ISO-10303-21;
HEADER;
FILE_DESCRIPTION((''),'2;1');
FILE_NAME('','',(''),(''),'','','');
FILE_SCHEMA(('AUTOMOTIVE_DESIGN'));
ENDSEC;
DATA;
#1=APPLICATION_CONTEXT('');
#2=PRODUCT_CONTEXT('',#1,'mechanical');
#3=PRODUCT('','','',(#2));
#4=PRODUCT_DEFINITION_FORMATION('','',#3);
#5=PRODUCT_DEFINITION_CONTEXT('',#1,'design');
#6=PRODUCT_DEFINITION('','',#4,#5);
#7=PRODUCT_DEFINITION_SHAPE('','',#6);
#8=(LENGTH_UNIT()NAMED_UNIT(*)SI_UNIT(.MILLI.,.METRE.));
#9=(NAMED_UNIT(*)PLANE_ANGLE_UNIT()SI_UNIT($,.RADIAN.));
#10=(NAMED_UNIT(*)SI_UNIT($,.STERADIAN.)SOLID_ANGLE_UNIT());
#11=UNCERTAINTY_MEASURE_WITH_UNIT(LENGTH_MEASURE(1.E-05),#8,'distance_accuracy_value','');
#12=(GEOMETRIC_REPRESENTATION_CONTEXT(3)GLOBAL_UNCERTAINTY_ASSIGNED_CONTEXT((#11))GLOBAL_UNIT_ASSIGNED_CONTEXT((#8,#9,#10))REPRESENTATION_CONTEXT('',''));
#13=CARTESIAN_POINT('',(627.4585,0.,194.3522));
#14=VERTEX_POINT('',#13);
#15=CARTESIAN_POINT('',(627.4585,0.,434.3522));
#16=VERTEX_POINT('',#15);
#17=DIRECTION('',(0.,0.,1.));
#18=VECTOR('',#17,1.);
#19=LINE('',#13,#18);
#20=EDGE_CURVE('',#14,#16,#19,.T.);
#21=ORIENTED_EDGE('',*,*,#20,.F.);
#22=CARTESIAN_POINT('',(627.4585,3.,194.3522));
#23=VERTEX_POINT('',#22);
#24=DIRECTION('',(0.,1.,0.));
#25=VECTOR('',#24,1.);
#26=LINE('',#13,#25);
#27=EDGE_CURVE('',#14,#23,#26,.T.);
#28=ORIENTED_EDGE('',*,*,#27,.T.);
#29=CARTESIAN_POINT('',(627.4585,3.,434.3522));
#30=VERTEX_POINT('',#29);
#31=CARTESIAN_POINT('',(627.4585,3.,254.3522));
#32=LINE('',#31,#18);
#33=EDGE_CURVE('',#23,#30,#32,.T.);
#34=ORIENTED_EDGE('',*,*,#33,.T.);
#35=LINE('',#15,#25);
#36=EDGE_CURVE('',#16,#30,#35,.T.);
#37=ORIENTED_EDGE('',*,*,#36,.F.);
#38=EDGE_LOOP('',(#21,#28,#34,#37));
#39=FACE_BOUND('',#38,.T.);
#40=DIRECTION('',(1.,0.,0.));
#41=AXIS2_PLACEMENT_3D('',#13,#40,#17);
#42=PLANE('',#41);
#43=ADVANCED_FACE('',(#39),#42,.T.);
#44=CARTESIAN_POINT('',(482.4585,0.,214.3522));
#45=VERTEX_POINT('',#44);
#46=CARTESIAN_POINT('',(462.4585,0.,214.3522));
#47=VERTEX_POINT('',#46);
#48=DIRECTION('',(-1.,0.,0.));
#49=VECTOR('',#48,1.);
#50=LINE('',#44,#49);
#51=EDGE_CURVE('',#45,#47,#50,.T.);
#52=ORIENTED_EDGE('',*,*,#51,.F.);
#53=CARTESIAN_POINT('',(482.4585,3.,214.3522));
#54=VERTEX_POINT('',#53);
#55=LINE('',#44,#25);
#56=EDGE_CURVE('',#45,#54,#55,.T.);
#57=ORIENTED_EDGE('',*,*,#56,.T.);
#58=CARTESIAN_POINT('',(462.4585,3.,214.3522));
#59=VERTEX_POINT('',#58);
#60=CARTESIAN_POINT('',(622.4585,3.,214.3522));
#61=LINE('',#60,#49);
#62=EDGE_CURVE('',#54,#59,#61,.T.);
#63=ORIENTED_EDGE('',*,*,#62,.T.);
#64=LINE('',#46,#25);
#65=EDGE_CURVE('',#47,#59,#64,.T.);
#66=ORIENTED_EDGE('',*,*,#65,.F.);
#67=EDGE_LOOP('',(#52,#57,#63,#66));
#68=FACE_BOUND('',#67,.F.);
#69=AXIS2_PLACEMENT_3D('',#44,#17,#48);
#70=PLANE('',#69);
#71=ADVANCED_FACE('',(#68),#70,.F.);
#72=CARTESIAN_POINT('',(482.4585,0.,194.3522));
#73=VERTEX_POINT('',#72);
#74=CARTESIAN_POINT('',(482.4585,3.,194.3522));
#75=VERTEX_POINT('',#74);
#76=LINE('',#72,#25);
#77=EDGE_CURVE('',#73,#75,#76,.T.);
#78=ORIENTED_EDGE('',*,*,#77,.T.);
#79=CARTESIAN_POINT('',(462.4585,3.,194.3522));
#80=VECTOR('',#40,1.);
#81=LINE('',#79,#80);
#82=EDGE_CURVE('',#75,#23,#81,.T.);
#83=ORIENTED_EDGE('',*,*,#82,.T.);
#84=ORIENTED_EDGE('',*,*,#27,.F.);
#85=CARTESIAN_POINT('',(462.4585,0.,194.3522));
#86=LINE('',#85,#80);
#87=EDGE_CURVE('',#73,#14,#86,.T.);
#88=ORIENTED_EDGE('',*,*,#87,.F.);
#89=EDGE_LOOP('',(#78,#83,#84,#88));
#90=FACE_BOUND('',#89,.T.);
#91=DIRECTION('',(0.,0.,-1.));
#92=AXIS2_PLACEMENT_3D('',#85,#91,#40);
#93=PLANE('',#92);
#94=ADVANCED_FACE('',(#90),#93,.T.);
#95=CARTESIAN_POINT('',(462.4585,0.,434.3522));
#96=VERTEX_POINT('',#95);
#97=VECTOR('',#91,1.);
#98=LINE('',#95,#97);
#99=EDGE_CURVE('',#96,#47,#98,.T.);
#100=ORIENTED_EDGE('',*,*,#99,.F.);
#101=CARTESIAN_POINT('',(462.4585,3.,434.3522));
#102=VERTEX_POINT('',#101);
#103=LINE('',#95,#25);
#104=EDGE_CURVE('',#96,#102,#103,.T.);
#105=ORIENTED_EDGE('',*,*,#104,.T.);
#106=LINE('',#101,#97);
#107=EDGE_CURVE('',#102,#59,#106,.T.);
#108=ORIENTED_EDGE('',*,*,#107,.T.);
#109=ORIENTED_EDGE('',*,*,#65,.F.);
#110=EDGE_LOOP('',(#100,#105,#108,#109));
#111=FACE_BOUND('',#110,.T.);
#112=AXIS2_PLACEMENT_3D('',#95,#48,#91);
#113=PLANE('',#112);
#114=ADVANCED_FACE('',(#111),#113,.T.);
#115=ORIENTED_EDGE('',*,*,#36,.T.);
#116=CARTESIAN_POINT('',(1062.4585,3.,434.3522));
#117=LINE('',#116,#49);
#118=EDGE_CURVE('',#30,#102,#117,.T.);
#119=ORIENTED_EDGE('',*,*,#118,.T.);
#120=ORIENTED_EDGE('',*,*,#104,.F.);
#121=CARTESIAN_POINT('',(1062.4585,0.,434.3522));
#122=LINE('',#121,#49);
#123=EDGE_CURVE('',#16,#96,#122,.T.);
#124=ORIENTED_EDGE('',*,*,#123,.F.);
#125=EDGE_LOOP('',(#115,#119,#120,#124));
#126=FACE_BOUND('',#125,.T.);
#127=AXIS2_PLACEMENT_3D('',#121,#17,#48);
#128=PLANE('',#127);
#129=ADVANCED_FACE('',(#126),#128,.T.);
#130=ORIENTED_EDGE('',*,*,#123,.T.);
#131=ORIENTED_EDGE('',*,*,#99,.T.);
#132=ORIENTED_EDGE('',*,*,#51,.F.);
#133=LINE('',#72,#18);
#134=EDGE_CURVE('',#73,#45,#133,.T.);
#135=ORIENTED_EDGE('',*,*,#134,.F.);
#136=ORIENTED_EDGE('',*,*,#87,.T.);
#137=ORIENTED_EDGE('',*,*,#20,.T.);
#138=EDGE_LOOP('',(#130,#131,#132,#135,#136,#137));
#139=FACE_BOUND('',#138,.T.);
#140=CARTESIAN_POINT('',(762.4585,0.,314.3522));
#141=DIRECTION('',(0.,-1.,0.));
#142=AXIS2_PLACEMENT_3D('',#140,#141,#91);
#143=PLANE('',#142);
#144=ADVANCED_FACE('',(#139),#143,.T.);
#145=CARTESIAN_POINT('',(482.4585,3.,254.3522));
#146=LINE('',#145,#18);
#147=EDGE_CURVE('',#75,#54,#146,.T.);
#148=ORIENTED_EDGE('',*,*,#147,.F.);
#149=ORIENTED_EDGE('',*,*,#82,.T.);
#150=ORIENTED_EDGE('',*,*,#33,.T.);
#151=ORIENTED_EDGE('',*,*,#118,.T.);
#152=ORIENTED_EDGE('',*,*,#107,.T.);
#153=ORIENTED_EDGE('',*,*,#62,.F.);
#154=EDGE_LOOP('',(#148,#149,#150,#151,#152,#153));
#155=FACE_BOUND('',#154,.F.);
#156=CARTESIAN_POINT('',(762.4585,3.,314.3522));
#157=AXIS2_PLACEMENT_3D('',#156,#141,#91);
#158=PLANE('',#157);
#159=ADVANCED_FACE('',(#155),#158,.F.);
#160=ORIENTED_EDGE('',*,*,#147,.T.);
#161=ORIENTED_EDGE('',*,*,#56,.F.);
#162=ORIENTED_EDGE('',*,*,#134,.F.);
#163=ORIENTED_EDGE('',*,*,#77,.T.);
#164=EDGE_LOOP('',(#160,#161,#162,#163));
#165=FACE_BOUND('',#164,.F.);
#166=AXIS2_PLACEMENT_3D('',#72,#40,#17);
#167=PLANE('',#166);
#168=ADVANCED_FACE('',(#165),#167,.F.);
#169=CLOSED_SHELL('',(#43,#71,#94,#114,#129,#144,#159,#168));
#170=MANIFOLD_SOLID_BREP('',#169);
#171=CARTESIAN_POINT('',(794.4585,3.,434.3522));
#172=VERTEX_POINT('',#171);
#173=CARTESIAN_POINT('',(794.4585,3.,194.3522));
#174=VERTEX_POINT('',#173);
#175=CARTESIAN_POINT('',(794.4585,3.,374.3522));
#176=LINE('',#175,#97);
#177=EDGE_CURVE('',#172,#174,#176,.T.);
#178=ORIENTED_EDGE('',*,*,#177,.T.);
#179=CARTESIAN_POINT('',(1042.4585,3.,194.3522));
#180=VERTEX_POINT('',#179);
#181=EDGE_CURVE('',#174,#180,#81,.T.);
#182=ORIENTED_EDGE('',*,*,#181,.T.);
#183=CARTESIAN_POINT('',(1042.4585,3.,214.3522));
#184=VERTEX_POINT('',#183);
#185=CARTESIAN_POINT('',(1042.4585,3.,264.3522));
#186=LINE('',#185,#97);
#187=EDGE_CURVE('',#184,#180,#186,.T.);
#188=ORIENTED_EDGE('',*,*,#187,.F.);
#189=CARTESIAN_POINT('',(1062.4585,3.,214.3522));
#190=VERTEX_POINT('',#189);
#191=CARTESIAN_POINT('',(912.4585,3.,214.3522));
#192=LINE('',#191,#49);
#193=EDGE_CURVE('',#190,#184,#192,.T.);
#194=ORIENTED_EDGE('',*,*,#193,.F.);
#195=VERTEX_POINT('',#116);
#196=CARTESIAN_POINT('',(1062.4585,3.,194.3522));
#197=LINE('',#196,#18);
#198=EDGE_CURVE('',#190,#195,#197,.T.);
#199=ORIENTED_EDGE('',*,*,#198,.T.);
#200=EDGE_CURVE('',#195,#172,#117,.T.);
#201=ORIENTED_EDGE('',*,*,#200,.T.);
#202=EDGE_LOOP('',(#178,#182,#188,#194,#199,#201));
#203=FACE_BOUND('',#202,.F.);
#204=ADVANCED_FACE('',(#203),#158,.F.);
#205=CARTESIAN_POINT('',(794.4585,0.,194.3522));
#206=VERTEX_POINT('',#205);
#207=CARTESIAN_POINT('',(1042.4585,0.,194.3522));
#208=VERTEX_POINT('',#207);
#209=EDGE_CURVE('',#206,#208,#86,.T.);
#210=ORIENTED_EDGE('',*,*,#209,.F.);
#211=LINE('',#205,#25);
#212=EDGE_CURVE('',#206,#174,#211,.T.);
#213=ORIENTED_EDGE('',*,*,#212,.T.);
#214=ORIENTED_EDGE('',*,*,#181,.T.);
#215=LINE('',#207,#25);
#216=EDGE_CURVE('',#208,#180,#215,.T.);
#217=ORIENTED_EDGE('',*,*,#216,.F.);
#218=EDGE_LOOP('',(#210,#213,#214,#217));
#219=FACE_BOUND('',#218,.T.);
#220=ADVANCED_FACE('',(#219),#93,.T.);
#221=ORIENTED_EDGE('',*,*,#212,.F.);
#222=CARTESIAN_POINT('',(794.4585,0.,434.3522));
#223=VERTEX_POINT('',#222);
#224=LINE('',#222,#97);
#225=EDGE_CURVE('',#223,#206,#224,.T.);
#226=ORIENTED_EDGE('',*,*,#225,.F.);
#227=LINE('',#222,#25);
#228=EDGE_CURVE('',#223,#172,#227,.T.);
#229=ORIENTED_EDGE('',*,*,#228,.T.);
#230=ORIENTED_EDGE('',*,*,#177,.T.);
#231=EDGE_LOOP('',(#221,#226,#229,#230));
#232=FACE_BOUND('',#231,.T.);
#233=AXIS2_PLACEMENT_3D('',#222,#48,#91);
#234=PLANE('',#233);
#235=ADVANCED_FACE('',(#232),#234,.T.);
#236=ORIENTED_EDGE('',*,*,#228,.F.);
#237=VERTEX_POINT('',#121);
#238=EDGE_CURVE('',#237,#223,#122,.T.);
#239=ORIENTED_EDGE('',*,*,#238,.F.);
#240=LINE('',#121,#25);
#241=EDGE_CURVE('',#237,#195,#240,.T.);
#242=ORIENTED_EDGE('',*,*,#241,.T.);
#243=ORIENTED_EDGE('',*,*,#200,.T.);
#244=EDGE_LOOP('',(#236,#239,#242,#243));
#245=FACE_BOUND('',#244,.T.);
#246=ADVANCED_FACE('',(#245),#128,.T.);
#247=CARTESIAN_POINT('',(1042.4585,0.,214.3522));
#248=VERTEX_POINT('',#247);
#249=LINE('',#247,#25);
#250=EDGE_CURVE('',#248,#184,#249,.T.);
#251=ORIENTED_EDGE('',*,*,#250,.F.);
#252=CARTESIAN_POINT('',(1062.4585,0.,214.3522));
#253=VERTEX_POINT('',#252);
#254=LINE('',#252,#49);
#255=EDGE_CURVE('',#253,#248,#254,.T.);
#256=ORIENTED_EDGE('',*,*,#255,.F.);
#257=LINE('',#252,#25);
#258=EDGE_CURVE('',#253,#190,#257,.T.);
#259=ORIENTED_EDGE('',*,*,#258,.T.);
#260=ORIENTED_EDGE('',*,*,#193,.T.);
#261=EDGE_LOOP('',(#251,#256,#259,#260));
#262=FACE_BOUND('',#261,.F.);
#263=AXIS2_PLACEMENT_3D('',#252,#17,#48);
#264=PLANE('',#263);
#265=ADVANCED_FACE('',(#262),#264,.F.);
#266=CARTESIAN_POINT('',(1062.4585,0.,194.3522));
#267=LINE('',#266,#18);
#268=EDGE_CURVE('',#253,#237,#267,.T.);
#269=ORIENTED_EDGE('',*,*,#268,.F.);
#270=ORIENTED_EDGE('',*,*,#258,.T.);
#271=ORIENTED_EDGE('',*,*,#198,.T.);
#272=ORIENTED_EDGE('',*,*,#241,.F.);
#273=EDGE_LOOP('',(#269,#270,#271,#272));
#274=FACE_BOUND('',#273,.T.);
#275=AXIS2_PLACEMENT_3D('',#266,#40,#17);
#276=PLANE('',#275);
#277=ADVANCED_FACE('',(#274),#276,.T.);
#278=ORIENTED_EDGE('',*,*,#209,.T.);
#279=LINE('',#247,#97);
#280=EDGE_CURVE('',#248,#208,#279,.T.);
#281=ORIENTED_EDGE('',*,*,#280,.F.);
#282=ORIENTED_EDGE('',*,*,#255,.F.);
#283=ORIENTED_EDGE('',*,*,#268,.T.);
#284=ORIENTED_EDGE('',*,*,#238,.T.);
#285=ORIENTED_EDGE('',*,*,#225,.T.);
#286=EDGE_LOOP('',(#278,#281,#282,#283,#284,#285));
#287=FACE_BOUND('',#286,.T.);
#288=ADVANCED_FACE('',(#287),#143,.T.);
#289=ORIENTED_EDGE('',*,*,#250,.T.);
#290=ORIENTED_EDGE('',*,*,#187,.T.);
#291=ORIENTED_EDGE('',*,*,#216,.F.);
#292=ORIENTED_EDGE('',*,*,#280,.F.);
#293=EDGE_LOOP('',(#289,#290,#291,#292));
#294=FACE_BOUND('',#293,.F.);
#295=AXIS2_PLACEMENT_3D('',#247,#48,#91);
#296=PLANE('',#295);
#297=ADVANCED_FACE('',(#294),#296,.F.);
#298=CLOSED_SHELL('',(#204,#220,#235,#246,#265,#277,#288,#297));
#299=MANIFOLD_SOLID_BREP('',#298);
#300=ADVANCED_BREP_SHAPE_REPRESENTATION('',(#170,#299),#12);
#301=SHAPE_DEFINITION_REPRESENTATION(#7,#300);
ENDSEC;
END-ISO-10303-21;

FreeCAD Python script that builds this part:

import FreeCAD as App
import Part
import Sketcher
from FreeCAD import Vector

doc = App.newDocument("Part")
body = doc.addObject("PartDesign::Body", "Body")
body.AllowCompound = True

# Sketch on XZ plane
sketch1 = doc.addObject("Sketcher::SketchObject", "Sketch")
body.addObject(sketch1)
sketch1.AttachmentSupport = (doc.XZ_Plane, [""])
sketch1.MapMode = "FlatFace"
sketch1.addGeometry([
    Part.LineSegment(Vector(1062, 434, 0), Vector(462, 434, 0)),
    Part.LineSegment(Vector(462, 434, 0), Vector(462, 194, 0)),
    Part.LineSegment(Vector(462, 194, 0), Vector(1062, 194, 0)),
    Part.LineSegment(Vector(1062, 194, 0), Vector(1062, 434, 0)),
], False)
sketch1.addConstraint([
    Sketcher.Constraint("Coincident", 0, 2, 1, 1),
    Sketcher.Constraint("Coincident", 1, 2, 2, 1),
    Sketcher.Constraint("Coincident", 2, 2, 3, 1),
    Sketcher.Constraint("Coincident", 3, 2, 0, 1),
    Sketcher.Constraint("Horizontal", 0),
    Sketcher.Constraint("Vertical", 1),
    Sketcher.Constraint("Horizontal", 2),
    Sketcher.Constraint("Vertical", 3),
    Sketcher.Constraint("DistanceX", 0, 2, 0, 1, 600.0),
    Sketcher.Constraint("DistanceY", 1, 2, 1, 1, 240.0),
    Sketcher.Constraint("DistanceX", -1, 1, 2, 2, 1062.4585),
    Sketcher.Constraint("DistanceY", -1, 1, 0, 2, 434.3522),
])
pad1 = doc.addObject("PartDesign::Pad", "Pad")
body.addObject(pad1)
pad1.Profile = sketch1
pad1.Length = 3
pad1.Reversed = True

# Sketch on XZ plane
sketch2 = doc.addObject("Sketcher::SketchObject", "Sketch001")
body.addObject(sketch2)
sketch2.AttachmentSupport = (doc.XZ_Plane, [""])
sketch2.MapMode = "FlatFace"
sketch2.addGeometry([
    Part.LineSegment(Vector(1062, 194, 0), Vector(1062, 214, 0)),  # 0
    Part.LineSegment(Vector(1062, 214, 0), Vector(1042, 214, 0)),  # 1
    Part.LineSegment(Vector(1042, 214, 0), Vector(1042, 194, 0)),  # 2
    Part.LineSegment(Vector(1042, 194, 0), Vector(1062, 194, 0)),  # 3
    Part.LineSegment(Vector(462, 214, 0), Vector(462, 194, 0)),  # 4
    Part.LineSegment(Vector(462, 194, 0), Vector(482, 194, 0)),  # 5
    Part.LineSegment(Vector(482, 194, 0), Vector(482, 214, 0)),  # 6
    Part.LineSegment(Vector(482, 214, 0), Vector(462, 214, 0)),  # 7
], False)
sketch2.addConstraint([
    Sketcher.Constraint("Coincident", 0, 2, 1, 1),
    Sketcher.Constraint("Coincident", 1, 2, 2, 1),
    Sketcher.Constraint("Coincident", 2, 2, 3, 1),
    Sketcher.Constraint("Coincident", 3, 2, 0, 1),
    Sketcher.Constraint("Coincident", 4, 2, 5, 1),
    Sketcher.Constraint("Coincident", 5, 2, 6, 1),
    Sketcher.Constraint("Coincident", 6, 2, 7, 1),
    Sketcher.Constraint("Coincident", 7, 2, 4, 1),
    Sketcher.Constraint("Vertical", 0),
    Sketcher.Constraint("Horizontal", 1),
    Sketcher.Constraint("Vertical", 2),
    Sketcher.Constraint("Horizontal", 3),
    Sketcher.Constraint("Vertical", 4),
    Sketcher.Constraint("Horizontal", 5),
    Sketcher.Constraint("Vertical", 6),
    Sketcher.Constraint("Horizontal", 7),
    Sketcher.Constraint("Horizontal", 3, 2, 4, 2),
    Sketcher.Constraint("Horizontal", 1, 2, 6, 2),
    Sketcher.Constraint("Equal", 3, 5),
    Sketcher.Constraint("Equal", 7, 0),
    Sketcher.Constraint("DistanceX", 1, 2, 1, 1, 20.0),
    Sketcher.Constraint("DistanceX", 4, 2, 2, 2, 580.0),
    Sketcher.Constraint("DistanceX", -1, 1, 0, 2, 1062.4585),
    Sketcher.Constraint("DistanceY", -1, 1, 0, 2, 214.3522),
])
pocket1 = doc.addObject("PartDesign::Pocket", "Pocket")
body.addObject(pocket1)
pocket1.Profile = sketch2
pocket1.Type = "ThroughAll"

# Sketch on XZ plane
sketch3 = doc.addObject("Sketcher::SketchObject", "Sketch002")
body.addObject(sketch3)
sketch3.AttachmentSupport = (doc.XZ_Plane, [""])
sketch3.MapMode = "FlatFace"
sketch3.addGeometry([
    Part.LineSegment(Vector(627, 434, 0), Vector(627, 194, 0)),
    Part.LineSegment(Vector(627, 194, 0), Vector(794, 194, 0)),
    Part.LineSegment(Vector(794, 194, 0), Vector(794, 434, 0)),
    Part.LineSegment(Vector(794, 434, 0), Vector(627, 434, 0)),
], False)
sketch3.addConstraint([
    Sketcher.Constraint("Coincident", 0, 2, 1, 1),
    Sketcher.Constraint("Coincident", 1, 2, 2, 1),
    Sketcher.Constraint("Coincident", 2, 2, 3, 1),
    Sketcher.Constraint("Coincident", 3, 2, 0, 1),
    Sketcher.Constraint("Vertical", 0),
    Sketcher.Constraint("Horizontal", 1),
    Sketcher.Constraint("Vertical", 2),
    Sketcher.Constraint("Horizontal", 3),
    Sketcher.Constraint("DistanceX", 1, 1, 1, 2, 167.0),
    Sketcher.Constraint("DistanceY", 0, 2, 0, 1, 240.0),
    Sketcher.Constraint("DistanceX", -1, 1, 0, 2, 627.4585),
    Sketcher.Constraint("DistanceY", -1, 1, 0, 2, 194.3522),
])
pocket2 = doc.addObject("PartDesign::Pocket", "Pocket001")
body.addObject(pocket2)
pocket2.Profile = sketch3
pocket2.Type = "ThroughAll"

doc.recompute()
